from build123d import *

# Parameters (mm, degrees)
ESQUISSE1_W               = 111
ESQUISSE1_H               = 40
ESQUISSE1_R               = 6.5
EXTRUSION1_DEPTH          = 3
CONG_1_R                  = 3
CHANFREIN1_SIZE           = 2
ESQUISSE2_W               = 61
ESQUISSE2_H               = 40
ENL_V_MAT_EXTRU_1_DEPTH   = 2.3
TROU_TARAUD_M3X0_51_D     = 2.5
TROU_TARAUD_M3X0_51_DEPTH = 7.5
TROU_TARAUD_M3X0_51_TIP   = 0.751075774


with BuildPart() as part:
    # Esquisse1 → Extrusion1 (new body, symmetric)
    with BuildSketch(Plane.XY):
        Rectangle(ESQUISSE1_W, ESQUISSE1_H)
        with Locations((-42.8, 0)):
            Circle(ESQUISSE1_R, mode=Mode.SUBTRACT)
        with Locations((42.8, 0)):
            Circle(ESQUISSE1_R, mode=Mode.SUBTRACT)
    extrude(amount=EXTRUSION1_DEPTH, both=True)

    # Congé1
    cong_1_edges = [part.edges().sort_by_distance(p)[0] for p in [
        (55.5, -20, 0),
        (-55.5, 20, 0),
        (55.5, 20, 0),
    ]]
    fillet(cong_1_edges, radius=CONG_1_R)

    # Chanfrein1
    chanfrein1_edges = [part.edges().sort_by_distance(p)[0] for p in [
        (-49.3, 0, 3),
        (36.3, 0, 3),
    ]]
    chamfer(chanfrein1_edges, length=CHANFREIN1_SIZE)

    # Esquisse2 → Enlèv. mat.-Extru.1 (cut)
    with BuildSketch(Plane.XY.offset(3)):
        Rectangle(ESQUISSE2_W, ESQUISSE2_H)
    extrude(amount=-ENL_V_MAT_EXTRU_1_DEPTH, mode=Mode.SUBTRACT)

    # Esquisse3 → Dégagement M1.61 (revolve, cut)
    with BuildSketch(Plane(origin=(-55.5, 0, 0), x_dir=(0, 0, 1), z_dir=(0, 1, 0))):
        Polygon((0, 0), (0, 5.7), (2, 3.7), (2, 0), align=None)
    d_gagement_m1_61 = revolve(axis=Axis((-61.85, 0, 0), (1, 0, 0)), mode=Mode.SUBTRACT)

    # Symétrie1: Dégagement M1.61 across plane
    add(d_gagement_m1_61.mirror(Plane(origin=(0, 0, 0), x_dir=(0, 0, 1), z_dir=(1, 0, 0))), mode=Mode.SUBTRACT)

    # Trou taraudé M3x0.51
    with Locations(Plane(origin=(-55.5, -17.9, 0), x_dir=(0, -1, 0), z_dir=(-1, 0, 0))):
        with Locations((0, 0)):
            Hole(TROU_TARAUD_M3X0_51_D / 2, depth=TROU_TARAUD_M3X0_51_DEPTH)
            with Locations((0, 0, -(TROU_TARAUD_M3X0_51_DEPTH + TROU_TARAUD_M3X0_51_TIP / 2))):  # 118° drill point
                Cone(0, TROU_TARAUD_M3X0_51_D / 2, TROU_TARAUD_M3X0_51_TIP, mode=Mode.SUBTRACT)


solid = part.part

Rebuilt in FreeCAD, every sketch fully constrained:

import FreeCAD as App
import Part
import Sketcher
Q = App.Units.Quantity


def edges_at(feature, points):
    """Names of the edges that pass closest to the given points."""
    edges = feature.Shape.Edges
    near = lambda p: min(range(len(edges)), key=lambda i: edges[i].distToShape(Part.Vertex(*p))[0])
    return sorted({f"Edge{near(p) + 1}" for p in points})

doc = App.newDocument("Part")
params = doc.addObject("Spreadsheet::Sheet", "Params")
for row, (alias, value) in enumerate([
    ("sketch1_diameter", "13 mm"),
    ("sketch1_width", "111 mm"),
    ("sketch1_height", "40 mm"),
    ("pad1_length", "6 mm"),
    ("fillet_radius", "3 mm"),
    ("chamfer_size", "2 mm"),
    ("sketch2_width", "61 mm"),
    ("sketch2_height", "40 mm"),
    ("pocket1_length", "2.3 mm"),
    ("sketch3_height", "2 mm"),
    ("sketch3_width", "5.7 mm"),
    ("groove_angle", "360 deg"),
    ("sketch4_diameter", "2.5 mm"),
    ("hole_diameter", "2.5 mm"),
    ("hole_depth", "7.5 mm"),
], start=1):
    params.set(f"A{row}", alias)
    params.set(f"B{row}", "=" + value)
    params.setAlias(f"B{row}", alias)

body = doc.addObject("PartDesign::Body", "Body")

sketch1 = body.newObject("Sketcher::SketchObject", "Sketch")
sketch1.AttachmentSupport = (doc.getObject("XY_Plane"), [""])
sketch1.MapMode = "FlatFace"
sketch1.addGeometry([
    Part.LineSegment(App.Vector(-55.5, 20, 0), App.Vector(-55.5, -20, 0)),
    Part.LineSegment(App.Vector(-55.5, -20, 0), App.Vector(55.5, -20, 0)),
    Part.LineSegment(App.Vector(55.5, -20, 0), App.Vector(55.5, 20, 0)),
    Part.LineSegment(App.Vector(55.5, 20, 0), App.Vector(-55.5, 20, 0)),
    Part.Circle(App.Vector(-42.8, 0, 0), App.Vector(0, 0, 1), 6.5),
    Part.Circle(App.Vector(42.8, 0, 0), App.Vector(0, 0, 1), 6.5),
], False)
sketch1.addConstraint([
    Sketcher.Constraint("Coincident", 0, 2, 1, 1),
    Sketcher.Constraint("Coincident", 1, 2, 2, 1),
    Sketcher.Constraint("Coincident", 2, 2, 3, 1),
    Sketcher.Constraint("Coincident", 3, 2, 0, 1),
    Sketcher.Constraint("Vertical", 0),
    Sketcher.Constraint("Horizontal", 1),
    Sketcher.Constraint("Vertical", 2),
    Sketcher.Constraint("Horizontal", 3),
    Sketcher.Constraint("Equal", 4, 5),
    Sketcher.Constraint("Symmetric", 4, 3, 5, 3, -1, 1),
    Sketcher.Constraint("Symmetric", 0, 2, 2, 2, -1, 1),
    Sketcher.Constraint("PointOnObject", 4, 3, -1),
    Sketcher.Constraint("Diameter", 4, Q("13 mm")),
    Sketcher.Constraint("DistanceX", 1, 1, 1, 2, Q("111 mm")),
    Sketcher.Constraint("DistanceY", 0, 2, 0, 1, Q("40 mm")),
    Sketcher.Constraint("DistanceX", 4, 3, -1, 1, Q("42.8 mm")),
])
sketch1.setExpression("Constraints[12]", "Params.sketch1_diameter")
sketch1.setExpression("Constraints[13]", "Params.sketch1_width")
sketch1.setExpression("Constraints[14]", "Params.sketch1_height")
pad1 = body.newObject("PartDesign::Pad", "Pad")
pad1.Profile = sketch1
pad1.setExpression("Length", "Params.pad1_length")
pad1.Midplane = True
doc.recompute()

fillet = body.newObject("PartDesign::Fillet", "Fillet")
fillet.Base = (pad1, edges_at(pad1, [(55.5, -20, 0), (-55.5, 20, 0), (55.5, 20, 0)]))
fillet.setExpression("Radius", "Params.fillet_radius")
doc.recompute()

chamfer = body.newObject("PartDesign::Chamfer", "Chamfer")
chamfer.Base = (fillet, edges_at(fillet, [(-49.3, 0, 3), (36.3, 0, 3)]))
chamfer.setExpression("Size", "Params.chamfer_size")

sketch2 = body.newObject("Sketcher::SketchObject", "Sketch001")
sketch2.AttachmentSupport = (doc.getObject("XY_Plane"), [""])
sketch2.MapMode = "FlatFace"
sketch2.AttachmentOffset = App.Placement(App.Vector(0, 0, 3), App.Rotation())
sketch2.addGeometry([
    Part.LineSegment(App.Vector(-30.5, 20, 0), App.Vector(-30.5, -20, 0)),
    Part.LineSegment(App.Vector(-30.5, -20, 0), App.Vector(30.5, -20, 0)),
    Part.LineSegment(App.Vector(30.5, -20, 0), App.Vector(30.5, 20, 0)),
    Part.LineSegment(App.Vector(30.5, 20, 0), App.Vector(-30.5, 20, 0)),
], False)
sketch2.addConstraint([
    Sketcher.Constraint("Coincident", 0, 2, 1, 1),
    Sketcher.Constraint("Coincident", 1, 2, 2, 1),
    Sketcher.Constraint("Coincident", 2, 2, 3, 1),
    Sketcher.Constraint("Coincident", 3, 2, 0, 1),
    Sketcher.Constraint("Vertical", 0),
    Sketcher.Constraint("Horizontal", 1),
    Sketcher.Constraint("Vertical", 2),
    Sketcher.Constraint("Horizontal", 3),
    Sketcher.Constraint("Symmetric", 0, 2, 2, 2, -1, 1),
    Sketcher.Constraint("DistanceX", 1, 1, 1, 2, Q("61 mm")),
    Sketcher.Constraint("DistanceY", 0, 2, 0, 1, Q("40 mm")),
])
sketch2.setExpression("Constraints[9]", "Params.sketch2_width")
sketch2.setExpression("Constraints[10]", "Params.sketch2_height")
pocket1 = body.newObject("PartDesign::Pocket", "Pocket")
pocket1.Profile = sketch2
pocket1.setExpression("Length", "Params.pocket1_length")

sketch3 = body.newObject("Sketcher::SketchObject", "Sketch002")
sketch3.AttachmentSupport = (doc.getObject("XZ_Plane"), [""])
sketch3.MapMode = "FlatFace"
sketch3.addGeometry([
    Part.LineSegment(App.Vector(-49.8, 0, 0), App.Vector(-55.5, 0, 0)),
    Part.LineSegment(App.Vector(-55.5, 0, 0), App.Vector(-55.5, 2, 0)),
    Part.LineSegment(App.Vector(-55.5, 2, 0), App.Vector(-51.8, 2, 0)),
    Part.LineSegment(App.Vector(-51.8, 2, 0), App.Vector(-49.8, 0, 0)),
], False)
sketch3.addConstraint([
    Sketcher.Constraint("Coincident", 0, 2, 1, 1),
    Sketcher.Constraint("Coincident", 1, 2, 2, 1),
    Sketcher.Constraint("Coincident", 2, 2, 3, 1),
    Sketcher.Constraint("Coincident", 3, 2, 0, 1),
    Sketcher.Constraint("Horizontal", 0),
    Sketcher.Constraint("Vertical", 1),
    Sketcher.Constraint("Horizontal", 2),
    Sketcher.Constraint("PointOnObject", 0, 2, -1),
    Sketcher.Constraint("DistanceY", 1, 1, 1, 2, Q("2 mm")),
    Sketcher.Constraint("Angle", 3, Q("-45 deg")),
    Sketcher.Constraint("DistanceX", 0, 2, 0, 1, Q("5.7 mm")),
    Sketcher.Constraint("DistanceX", 0, 2, -1, 1, Q("55.5 mm")),
])
sketch3.setExpression("Constraints[8]", "Params.sketch3_height")
sketch3.setExpression("Constraints[10]", "Params.sketch3_width")
groove = body.newObject("PartDesign::Groove", "Groove")
groove.Profile = sketch3
groove.ReferenceAxis = (sketch3, ["H_Axis"])
groove.setExpression("Angle", "Params.groove_angle")
doc.recompute()

mirrored = body.newObject("PartDesign::Mirrored", "Mirrored")
mirrored.Originals = [groove]
mirrored.MirrorPlane = (doc.getObject("YZ_Plane"), [""])
body.Tip = mirrored

sketch4 = body.newObject("Sketcher::SketchObject", "Sketch003")
sketch4.AttachmentSupport = (doc.getObject("YZ_Plane"), [""])
sketch4.MapMode = "FlatFace"
sketch4.AttachmentOffset = App.Placement(App.Vector(0, 0, -55.5), App.Rotation())
sketch4.addGeometry(Part.Circle(App.Vector(-17.9, 0, 0), App.Vector(0, 0, 1), 1.25), False)
sketch4.addConstraint([
    Sketcher.Constraint("PointOnObject", 0, 3, -1),
    Sketcher.Constraint("Diameter", 0, Q("2.5 mm")),
    Sketcher.Constraint("DistanceX", 0, 3, -1, 1, Q("17.9 mm")),
])
sketch4.setExpression("Constraints[1]", "Params.sketch4_diameter")
doc.recompute()
hole = body.newObject("PartDesign::Hole", "Hole")
hole.Profile = sketch4
hole.ThreadType = "None"
hole.setExpression("Diameter", "Params.hole_diameter")
hole.DepthType = "Dimension"
hole.setExpression("Depth", "Params.hole_depth")
hole.DrillPoint = "Angled"
hole.DrillPointAngle = 118
hole.Reversed = True

doc.recompute()
